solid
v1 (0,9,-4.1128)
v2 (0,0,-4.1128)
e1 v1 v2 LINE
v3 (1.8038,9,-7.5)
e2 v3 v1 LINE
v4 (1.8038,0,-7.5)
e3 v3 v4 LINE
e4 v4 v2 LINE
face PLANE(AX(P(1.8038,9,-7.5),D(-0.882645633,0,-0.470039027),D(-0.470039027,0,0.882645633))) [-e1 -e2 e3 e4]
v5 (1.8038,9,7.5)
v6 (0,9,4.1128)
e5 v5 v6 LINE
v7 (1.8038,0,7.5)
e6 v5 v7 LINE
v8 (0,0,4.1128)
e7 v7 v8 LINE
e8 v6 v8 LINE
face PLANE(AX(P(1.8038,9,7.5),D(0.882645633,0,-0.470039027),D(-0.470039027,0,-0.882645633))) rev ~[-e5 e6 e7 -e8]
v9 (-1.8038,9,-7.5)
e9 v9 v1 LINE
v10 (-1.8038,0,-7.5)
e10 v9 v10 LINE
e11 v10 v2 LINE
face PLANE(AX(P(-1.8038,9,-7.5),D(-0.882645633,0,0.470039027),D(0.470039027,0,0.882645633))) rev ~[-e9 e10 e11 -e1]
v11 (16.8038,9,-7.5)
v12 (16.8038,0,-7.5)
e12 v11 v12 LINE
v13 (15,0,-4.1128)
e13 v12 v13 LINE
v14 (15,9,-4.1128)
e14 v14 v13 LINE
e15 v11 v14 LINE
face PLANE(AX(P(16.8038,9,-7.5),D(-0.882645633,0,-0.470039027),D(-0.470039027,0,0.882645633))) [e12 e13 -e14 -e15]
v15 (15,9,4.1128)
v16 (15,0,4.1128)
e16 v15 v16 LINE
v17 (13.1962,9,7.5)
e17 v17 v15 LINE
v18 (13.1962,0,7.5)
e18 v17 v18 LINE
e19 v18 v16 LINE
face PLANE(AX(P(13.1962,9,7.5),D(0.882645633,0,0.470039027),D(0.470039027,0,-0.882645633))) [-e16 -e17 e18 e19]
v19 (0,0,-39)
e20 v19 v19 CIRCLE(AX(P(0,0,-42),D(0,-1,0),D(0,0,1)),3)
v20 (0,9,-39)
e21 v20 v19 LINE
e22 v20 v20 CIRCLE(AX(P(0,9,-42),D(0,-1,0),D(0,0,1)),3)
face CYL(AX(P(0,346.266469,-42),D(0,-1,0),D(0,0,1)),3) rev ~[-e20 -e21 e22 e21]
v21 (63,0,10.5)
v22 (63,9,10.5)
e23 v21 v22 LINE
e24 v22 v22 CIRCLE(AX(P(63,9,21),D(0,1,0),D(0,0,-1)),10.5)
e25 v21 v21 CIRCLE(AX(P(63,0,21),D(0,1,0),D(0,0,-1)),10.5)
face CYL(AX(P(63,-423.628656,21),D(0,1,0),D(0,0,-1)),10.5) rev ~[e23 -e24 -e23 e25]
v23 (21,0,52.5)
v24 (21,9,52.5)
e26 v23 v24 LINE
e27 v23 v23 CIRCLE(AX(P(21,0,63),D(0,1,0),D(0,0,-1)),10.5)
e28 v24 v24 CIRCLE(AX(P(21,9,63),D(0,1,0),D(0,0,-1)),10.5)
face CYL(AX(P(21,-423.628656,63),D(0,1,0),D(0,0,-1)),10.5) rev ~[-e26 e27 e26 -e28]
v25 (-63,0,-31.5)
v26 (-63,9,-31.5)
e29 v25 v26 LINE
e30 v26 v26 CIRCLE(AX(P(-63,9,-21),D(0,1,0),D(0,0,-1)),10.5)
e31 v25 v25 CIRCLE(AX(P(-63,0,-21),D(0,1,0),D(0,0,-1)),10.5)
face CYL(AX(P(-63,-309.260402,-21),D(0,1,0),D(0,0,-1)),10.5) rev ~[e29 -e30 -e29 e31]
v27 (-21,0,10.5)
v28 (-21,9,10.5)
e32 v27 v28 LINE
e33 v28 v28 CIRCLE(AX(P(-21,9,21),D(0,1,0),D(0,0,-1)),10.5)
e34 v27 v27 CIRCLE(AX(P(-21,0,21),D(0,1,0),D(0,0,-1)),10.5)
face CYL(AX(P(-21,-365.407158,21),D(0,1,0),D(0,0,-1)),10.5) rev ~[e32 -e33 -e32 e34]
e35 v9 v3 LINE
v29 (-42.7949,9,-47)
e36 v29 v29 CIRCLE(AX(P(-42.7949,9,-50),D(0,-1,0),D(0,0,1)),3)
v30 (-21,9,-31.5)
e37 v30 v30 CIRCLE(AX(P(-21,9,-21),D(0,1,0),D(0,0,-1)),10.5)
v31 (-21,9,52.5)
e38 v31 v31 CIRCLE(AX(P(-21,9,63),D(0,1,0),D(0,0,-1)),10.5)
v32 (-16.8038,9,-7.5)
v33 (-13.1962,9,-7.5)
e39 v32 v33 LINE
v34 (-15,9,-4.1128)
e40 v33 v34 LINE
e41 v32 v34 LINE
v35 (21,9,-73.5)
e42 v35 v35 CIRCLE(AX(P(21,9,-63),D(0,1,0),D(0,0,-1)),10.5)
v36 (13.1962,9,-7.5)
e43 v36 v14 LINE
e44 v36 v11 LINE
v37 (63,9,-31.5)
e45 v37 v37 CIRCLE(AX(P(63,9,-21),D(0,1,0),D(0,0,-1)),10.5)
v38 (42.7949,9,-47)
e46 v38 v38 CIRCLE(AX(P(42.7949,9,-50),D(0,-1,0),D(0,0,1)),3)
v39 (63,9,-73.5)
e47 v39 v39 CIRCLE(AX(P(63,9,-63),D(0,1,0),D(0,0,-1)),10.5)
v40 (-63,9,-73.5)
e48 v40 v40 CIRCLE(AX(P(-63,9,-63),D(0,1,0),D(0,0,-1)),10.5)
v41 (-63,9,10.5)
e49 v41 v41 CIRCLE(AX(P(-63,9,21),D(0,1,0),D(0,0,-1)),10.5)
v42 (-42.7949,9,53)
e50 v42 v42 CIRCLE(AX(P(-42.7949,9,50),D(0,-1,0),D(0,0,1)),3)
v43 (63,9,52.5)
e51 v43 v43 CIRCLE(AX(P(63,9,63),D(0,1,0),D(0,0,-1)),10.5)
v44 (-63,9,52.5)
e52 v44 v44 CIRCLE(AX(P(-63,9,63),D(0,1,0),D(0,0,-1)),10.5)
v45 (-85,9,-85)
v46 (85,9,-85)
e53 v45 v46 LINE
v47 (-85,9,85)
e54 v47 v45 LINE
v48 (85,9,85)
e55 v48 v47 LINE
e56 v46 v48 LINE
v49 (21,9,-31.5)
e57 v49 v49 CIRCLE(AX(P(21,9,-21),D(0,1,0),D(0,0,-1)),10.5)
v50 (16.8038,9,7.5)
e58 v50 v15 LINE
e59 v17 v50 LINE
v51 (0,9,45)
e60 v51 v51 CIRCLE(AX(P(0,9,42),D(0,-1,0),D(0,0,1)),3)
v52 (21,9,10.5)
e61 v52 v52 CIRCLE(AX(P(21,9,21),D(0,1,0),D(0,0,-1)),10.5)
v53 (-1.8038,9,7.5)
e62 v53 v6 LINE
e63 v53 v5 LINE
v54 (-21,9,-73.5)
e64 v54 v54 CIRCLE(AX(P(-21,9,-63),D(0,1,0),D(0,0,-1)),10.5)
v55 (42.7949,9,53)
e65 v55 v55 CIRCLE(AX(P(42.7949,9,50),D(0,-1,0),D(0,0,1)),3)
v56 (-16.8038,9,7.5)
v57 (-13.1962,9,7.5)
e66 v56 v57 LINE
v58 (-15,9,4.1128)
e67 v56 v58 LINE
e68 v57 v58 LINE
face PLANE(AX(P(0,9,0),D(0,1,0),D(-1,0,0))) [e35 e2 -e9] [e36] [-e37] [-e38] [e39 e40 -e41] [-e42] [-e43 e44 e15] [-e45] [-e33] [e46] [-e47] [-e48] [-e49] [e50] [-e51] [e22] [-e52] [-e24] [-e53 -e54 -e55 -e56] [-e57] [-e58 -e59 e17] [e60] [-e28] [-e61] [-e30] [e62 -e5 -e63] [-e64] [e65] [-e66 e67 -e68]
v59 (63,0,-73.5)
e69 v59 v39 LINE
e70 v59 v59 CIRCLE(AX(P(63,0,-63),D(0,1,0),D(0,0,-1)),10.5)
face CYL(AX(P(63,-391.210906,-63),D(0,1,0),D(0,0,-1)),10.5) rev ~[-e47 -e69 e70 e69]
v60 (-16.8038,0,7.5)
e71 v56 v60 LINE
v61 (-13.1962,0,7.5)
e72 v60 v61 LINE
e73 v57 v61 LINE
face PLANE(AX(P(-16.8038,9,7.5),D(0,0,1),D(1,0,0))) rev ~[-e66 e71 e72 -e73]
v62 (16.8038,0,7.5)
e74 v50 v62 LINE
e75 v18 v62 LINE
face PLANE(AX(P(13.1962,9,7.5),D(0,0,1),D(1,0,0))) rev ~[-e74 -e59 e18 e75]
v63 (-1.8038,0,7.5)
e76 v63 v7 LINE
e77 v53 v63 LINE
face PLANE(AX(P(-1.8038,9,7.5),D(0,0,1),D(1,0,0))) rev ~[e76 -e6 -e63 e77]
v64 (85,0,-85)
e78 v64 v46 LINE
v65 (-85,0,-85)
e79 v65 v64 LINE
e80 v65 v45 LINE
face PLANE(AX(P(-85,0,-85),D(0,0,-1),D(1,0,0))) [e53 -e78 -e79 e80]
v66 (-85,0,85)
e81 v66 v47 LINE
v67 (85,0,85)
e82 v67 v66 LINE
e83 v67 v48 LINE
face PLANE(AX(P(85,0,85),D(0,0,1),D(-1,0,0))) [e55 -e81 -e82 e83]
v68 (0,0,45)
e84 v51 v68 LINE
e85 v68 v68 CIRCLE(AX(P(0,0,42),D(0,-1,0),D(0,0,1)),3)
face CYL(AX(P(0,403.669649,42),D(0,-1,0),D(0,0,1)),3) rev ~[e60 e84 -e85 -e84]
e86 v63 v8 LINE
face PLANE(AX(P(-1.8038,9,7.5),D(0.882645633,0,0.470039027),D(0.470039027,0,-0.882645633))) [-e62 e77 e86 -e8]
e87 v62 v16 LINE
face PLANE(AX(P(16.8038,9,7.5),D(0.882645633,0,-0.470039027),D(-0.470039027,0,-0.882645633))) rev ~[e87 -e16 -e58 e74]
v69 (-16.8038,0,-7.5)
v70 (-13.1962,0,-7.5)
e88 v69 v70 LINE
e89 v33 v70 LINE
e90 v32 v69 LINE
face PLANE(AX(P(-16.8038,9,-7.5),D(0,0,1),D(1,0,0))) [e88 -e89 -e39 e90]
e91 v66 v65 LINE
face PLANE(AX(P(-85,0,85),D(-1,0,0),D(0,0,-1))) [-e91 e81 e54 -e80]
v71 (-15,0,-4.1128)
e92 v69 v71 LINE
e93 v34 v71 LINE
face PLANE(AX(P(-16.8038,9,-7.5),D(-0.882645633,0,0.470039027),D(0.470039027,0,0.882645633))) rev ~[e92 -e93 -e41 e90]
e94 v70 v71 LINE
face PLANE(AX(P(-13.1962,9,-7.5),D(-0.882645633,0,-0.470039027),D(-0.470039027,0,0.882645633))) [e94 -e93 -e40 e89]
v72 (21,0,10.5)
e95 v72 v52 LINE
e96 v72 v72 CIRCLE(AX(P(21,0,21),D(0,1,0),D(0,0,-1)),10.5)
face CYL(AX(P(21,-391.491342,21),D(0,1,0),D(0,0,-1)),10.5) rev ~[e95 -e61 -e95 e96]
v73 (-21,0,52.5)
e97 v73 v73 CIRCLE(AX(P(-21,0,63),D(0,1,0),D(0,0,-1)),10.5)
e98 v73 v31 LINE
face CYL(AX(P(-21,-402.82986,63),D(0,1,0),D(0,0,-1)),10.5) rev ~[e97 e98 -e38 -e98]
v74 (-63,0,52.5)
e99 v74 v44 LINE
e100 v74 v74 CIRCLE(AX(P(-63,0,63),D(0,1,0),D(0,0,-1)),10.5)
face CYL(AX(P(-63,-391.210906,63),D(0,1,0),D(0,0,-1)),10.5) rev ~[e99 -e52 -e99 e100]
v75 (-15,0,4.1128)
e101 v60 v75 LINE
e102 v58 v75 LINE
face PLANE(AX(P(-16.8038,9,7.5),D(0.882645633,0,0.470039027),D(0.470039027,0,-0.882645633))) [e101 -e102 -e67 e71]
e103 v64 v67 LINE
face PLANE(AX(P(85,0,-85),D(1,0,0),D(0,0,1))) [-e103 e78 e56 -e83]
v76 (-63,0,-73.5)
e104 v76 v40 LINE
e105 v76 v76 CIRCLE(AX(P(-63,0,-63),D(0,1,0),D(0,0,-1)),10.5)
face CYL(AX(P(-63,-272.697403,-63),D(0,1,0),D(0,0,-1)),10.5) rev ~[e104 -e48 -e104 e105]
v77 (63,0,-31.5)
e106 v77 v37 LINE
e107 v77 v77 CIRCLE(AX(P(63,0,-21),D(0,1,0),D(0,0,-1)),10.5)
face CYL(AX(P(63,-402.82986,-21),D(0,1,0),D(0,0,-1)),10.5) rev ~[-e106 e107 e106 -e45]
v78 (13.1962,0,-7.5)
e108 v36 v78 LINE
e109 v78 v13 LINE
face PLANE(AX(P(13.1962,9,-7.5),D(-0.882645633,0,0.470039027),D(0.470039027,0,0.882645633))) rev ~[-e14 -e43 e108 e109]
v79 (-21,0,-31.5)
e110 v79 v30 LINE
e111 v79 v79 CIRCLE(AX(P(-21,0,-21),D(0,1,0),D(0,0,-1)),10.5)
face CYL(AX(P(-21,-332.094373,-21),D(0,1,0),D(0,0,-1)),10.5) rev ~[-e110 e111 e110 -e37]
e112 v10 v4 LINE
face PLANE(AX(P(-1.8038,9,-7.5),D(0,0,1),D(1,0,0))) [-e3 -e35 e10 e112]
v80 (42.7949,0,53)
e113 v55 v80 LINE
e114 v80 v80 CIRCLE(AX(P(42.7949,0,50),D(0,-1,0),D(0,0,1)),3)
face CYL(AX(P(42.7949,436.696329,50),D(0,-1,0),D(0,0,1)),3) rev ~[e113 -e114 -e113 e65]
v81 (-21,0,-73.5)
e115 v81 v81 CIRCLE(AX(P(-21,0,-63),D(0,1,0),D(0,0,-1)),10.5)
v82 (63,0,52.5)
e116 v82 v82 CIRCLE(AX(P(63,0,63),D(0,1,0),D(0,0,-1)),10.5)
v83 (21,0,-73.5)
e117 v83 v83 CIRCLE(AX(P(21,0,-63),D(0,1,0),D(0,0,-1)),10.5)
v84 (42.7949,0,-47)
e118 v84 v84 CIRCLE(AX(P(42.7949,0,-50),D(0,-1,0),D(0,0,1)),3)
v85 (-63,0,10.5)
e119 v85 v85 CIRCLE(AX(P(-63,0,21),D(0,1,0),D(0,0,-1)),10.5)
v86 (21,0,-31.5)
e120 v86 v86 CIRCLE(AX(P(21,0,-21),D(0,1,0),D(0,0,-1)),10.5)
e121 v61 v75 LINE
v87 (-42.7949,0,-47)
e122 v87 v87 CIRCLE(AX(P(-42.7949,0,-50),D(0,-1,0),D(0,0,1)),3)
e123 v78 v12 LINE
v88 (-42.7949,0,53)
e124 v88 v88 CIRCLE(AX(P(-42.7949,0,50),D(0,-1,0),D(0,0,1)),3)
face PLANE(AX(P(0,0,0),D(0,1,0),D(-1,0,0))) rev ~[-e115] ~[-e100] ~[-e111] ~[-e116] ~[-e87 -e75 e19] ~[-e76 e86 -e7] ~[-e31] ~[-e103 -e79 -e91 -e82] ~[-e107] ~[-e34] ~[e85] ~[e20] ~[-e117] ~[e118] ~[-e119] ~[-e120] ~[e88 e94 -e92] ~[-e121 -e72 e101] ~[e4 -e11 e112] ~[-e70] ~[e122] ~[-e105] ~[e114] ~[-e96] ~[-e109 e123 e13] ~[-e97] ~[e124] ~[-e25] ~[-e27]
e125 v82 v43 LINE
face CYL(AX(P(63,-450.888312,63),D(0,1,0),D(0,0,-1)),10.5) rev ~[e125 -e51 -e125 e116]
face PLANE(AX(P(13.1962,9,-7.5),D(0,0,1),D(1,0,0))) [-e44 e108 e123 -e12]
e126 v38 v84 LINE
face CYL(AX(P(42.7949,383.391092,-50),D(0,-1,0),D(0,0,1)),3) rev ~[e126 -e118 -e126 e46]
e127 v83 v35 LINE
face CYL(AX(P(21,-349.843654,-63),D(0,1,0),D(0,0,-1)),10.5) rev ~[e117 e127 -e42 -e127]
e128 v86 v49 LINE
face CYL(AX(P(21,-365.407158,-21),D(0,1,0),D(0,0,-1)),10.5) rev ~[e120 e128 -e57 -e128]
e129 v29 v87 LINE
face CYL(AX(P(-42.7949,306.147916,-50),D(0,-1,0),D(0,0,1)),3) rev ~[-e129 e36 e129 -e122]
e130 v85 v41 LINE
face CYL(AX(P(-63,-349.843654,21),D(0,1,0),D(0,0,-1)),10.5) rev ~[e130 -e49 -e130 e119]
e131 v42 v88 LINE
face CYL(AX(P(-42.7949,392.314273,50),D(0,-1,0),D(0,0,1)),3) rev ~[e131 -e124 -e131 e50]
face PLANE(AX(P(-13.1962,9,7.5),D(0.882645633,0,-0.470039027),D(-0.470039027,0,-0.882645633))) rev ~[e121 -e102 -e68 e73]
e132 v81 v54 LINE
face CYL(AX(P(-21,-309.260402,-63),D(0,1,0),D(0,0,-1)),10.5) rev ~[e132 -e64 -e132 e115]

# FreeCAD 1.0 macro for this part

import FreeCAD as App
import Part
import Sketcher

V = App.Vector
Q = App.Units.Quantity


def add_polygon(sketch, points):
    """Adds a closed chain of lines whose ends are joined by coincident constraints."""
    first, n = sketch.GeometryCount, len(points)
    for a, b in zip(points, points[1:] + points[:1]):
        sketch.addGeometry(Part.LineSegment(App.Vector(*a, 0), App.Vector(*b, 0)), False)
    for i in range(n):
        sketch.addConstraint(Sketcher.Constraint("Coincident", first + i, 2, first + (i + 1) % n, 1))

doc = App.newDocument("Part")
body = doc.addObject("PartDesign::Body", "Body")

sketch1 = body.newObject("Sketcher::SketchObject", "Sketch")
sketch1.AttachmentSupport = (doc.getObject("XZ_Plane"), [""])
sketch1.MapMode = "FlatFace"
add_polygon(sketch1, [(-85, 85), (85, 85), (85, -85), (-85, -85)])
sketch1.addConstraint([
    Sketcher.Constraint("Horizontal", 0),
    Sketcher.Constraint("Vertical", 1),
    Sketcher.Constraint("Horizontal", 2),
    Sketcher.Constraint("Vertical", 3),
    Sketcher.Constraint("Symmetric", 0, 2, 2, 2, -1, 1),
    Sketcher.Constraint("Equal", 2, 1),
    Sketcher.Constraint("DistanceX", 0, 1, 0, 2, Q("170 mm")),
])
pad1 = body.newObject("PartDesign::Pad", "Pad")
pad1.Profile = sketch1
pad1.Length = 9
pad1.Reversed = True

sketch2 = body.newObject("Sketcher::SketchObject", "Sketch001")
sketch2.AttachmentSupport = (doc.getObject("XZ_Plane"), [""])
sketch2.MapMode = "FlatFace"
sketch2.addGeometry([
    Part.Circle(V(63, -63, 0), V(0, 0, 1), 10),
    Part.Circle(V(63, -21, 0), V(0, 0, 1), 10),
    Part.Circle(V(63, 21, 0), V(0, 0, 1), 10),
    Part.Circle(V(63, 63, 0), V(0, 0, 1), 10),
    Part.Circle(V(21, -63, 0), V(0, 0, 1), 10),
    Part.Circle(V(21, -21, 0), V(0, 0, 1), 10),
    Part.Circle(V(21, 21, 0), V(0, 0, 1), 10),
    Part.Circle(V(21, 63, 0), V(0, 0, 1), 10),
    Part.Circle(V(-21, -63, 0), V(0, 0, 1), 10),
    Part.Circle(V(-21, -21, 0), V(0, 0, 1), 10),
    Part.Circle(V(-21, 21, 0), V(0, 0, 1), 10),
    Part.Circle(V(-21, 63, 0), V(0, 0, 1), 10),
    Part.Circle(V(-63, -63, 0), V(0, 0, 1), 10),
    Part.Circle(V(-63, -21, 0), V(0, 0, 1), 10),
    Part.Circle(V(-63, 21, 0), V(0, 0, 1), 10),
    Part.Circle(V(-63, 63, 0), V(0, 0, 1), 10),
], False)
sketch2.addConstraint([
    Sketcher.Constraint("Equal", 0, 1),
    Sketcher.Constraint("Equal", 1, 2),
    Sketcher.Constraint("Equal", 2, 3),
    Sketcher.Constraint("Equal", 3, 4),
    Sketcher.Constraint("Equal", 4, 5),
    Sketcher.Constraint("Equal", 5, 6),
    Sketcher.Constraint("Equal", 6, 7),
    Sketcher.Constraint("Equal", 7, 8),
    Sketcher.Constraint("Equal", 8, 9),
    Sketcher.Constraint("Equal", 9, 10),
    Sketcher.Constraint("Equal", 10, 11),
    Sketcher.Constraint("Equal", 11, 12),
    Sketcher.Constraint("Equal", 12, 13),
    Sketcher.Constraint("Equal", 13, 14),
    Sketcher.Constraint("Equal", 14, 15),
    Sketcher.Constraint("Symmetric", 7, 3, 8, 3, -1, 1),
    Sketcher.Constraint("Symmetric", 6, 3, 9, 3, -1, 1),
    Sketcher.Constraint("Symmetric", 5, 3, 10, 3, -1, 1),
    Sketcher.Constraint("Symmetric", 4, 3, 11, 3, -1, 1),
    Sketcher.Constraint("Symmetric", 3, 3, 12, 3, -1, 1),
    Sketcher.Constraint("Symmetric", 2, 3, 13, 3, -1, 1),
    Sketcher.Constraint("Symmetric", 1, 3, 14, 3, -1, 1),
    Sketcher.Constraint("Symmetric", 0, 3, 15, 3, -1, 1),
    Sketcher.Constraint("Symmetric", 4, 3, 8, 3, -2),
    Sketcher.Constraint("Symmetric", 5, 3, 9, 3, -2),
    Sketcher.Constraint("Symmetric", 0, 3, 12, 3, -2),
    Sketcher.Constraint("Symmetric", 1, 3, 13, 3, -2),
    Sketcher.Constraint("Horizontal", 0, 3, 4, 3),
    Sketcher.Constraint("Horizontal", 1, 3, 5, 3),
    Sketcher.Constraint("Vertical", 0, 3, 1, 3),
    Sketcher.Constraint("Vertical", 4, 3, 5, 3),
    Sketcher.Constraint("Diameter", 0, Q("21 mm")),
    Sketcher.Constraint("DistanceX", -1, 1, 0, 3, Q("63 mm")),
    Sketcher.Constraint("DistanceY", 0, 3, -1, 1, Q("63 mm")),
    Sketcher.Constraint("DistanceY", 1, 3, -1, 1, Q("21 mm")),
    Sketcher.Constraint("DistanceX", -1, 1, 4, 3, Q("21 mm")),
])
doc.recompute()
hole = body.newObject("PartDesign::Hole", "Hole")
hole.Profile = sketch2
hole.ThreadType = "None"
hole.Diameter = 21
hole.DepthType = "ThroughAll"

sketch3 = body.newObject("Sketcher::SketchObject", "Sketch002")
sketch3.AttachmentSupport = (doc.getObject("XZ_Plane"), [""])
sketch3.MapMode = "FlatFace"
sketch3.AttachmentOffset = App.Placement(V(0, 0, -9), App.Rotation())
sketch3.addGeometry([
    Part.Circle(V(-42.8, -50, 0), V(0, 0, 1), 3),
    Part.Circle(V(42.8, -50, 0), V(0, 0, 1), 3),
    Part.Circle(V(42.8, 50, 0), V(0, 0, 1), 3),
    Part.Circle(V(-42.8, 50, 0), V(0, 0, 1), 3),
], False)
sketch3.addConstraint([
    Sketcher.Constraint("Equal", 0, 1),
    Sketcher.Constraint("Equal", 1, 2),
    Sketcher.Constraint("Equal", 2, 3),
    Sketcher.Constraint("Symmetric", 0, 3, 2, 3, -1, 1),
    Sketcher.Constraint("Symmetric", 1, 3, 3, 3, -1, 1),
    Sketcher.Constraint("Symmetric", 0, 3, 1, 3, -2),
    Sketcher.Constraint("Diameter", 0, Q("6 mm")),
    Sketcher.Constraint("DistanceY", 0, 3, -1, 1, Q("50 mm")),
    Sketcher.Constraint("DistanceX", 0, 3, -1, 1, Q("42.795 mm")),
])
doc.recompute()
hole2 = body.newObject("PartDesign::Hole", "Hole001")
hole2.Profile = sketch3
hole2.ThreadType = "None"
hole2.Diameter = 6
hole2.DepthType = "ThroughAll"
hole2.Reversed = True

sketch4 = body.newObject("Sketcher::SketchObject", "Sketch003")
sketch4.AttachmentSupport = (doc.getObject("XZ_Plane"), [""])
sketch4.MapMode = "FlatFace"
sketch4.AttachmentOffset = App.Placement(V(0, 0, -9), App.Rotation())
sketch4.addGeometry([
    Part.Circle(V(0, -42, 0), V(0, 0, 1), 3),
    Part.Circle(V(0, 42, 0), V(0, 0, 1), 3),
], False)
sketch4.addConstraint([
    Sketcher.Constraint("Equal", 0, 1),
    Sketcher.Constraint("Symmetric", 0, 3, 1, 3, -1, 1),
    Sketcher.Constraint("PointOnObject", 0, 3, -2),
    Sketcher.Constraint("Diameter", 0, Q("6 mm")),
    Sketcher.Constraint("DistanceY", 0, 3, -1, 1, Q("42 mm")),
])
doc.recompute()
hole3 = body.newObject("PartDesign::Hole", "Hole002")
hole3.Profile = sketch4
hole3.ThreadType = "None"
hole3.Diameter = 6
hole3.DepthType = "ThroughAll"
hole3.Reversed = True

sketch5 = body.newObject("Sketcher::SketchObject", "Sketch004")
sketch5.AttachmentSupport = (doc.getObject("XZ_Plane"), [""])
sketch5.MapMode = "FlatFace"
sketch5.AttachmentOffset = App.Placement(V(0, 0, -9), App.Rotation())
add_polygon(sketch5, [(1.8, -7.5), (-1.8, -7.5), (0, -4.1)])
add_polygon(sketch5, [(0, 4.1), (-1.8, 7.5), (1.8, 7.5)])
sketch5.addConstraint([
    Sketcher.Constraint("Horizontal", 0),
    Sketcher.Constraint("Horizontal", 4),
    Sketcher.Constraint("Symmetric", 2, 2, 3, 2, -1, 1),
    Sketcher.Constraint("Symmetric", 1, 2, 5, 2, -1, 1),
    Sketcher.Constraint("PointOnObject", 1, 2, -2),
    Sketcher.Constraint("Parallel", 1, 5),
    Sketcher.Constraint("Vertical", 0, 2, 3, 2),
    Sketcher.Constraint("DistanceY", 0, 2, 3, 2, Q("15 mm")),
    Sketcher.Constraint("DistanceX", 0, 2, 0, 1, Q("3.6076 mm")),
    Sketcher.Constraint("Distance", 1, Q("3.8376 mm")),
])
pocket1 = body.newObject("PartDesign::Pocket", "Pocket")
pocket1.Profile = sketch5
pocket1.Length = 10
pocket1.Reversed = True

sketch6 = body.newObject("Sketcher::SketchObject", "Sketch005")
sketch6.AttachmentSupport = (doc.getObject("XZ_Plane"), [""])
sketch6.MapMode = "FlatFace"
sketch6.AttachmentOffset = App.Placement(V(0, 0, -9), App.Rotation())
add_polygon(sketch6, [(-13.2, -7.5), (-16.8, -7.5), (-15, -4.1)])
add_polygon(sketch6, [(16.8, -7.5), (13.2, -7.5), (15, -4.1)])
add_polygon(sketch6, [(-15, 4.1), (-16.8, 7.5), (-13.2, 7.5)])
add_polygon(sketch6, [(15, 4.1), (13.2, 7.5), (16.8, 7.5)])
sketch6.addConstraint([
    Sketcher.Constraint("Horizontal", 0),
    Sketcher.Constraint("Horizontal", 3),
    Sketcher.Constraint("Horizontal", 7),
    Sketcher.Constraint("Horizontal", 10),
    Sketcher.Constraint("Symmetric", 5, 2, 6, 2, -1, 1),
    Sketcher.Constraint("Symmetric", 4, 2, 8, 2, -1, 1),
    Sketcher.Constraint("Symmetric", 2, 2, 9, 2, -1, 1),
    Sketcher.Constraint("Symmetric", 1, 2, 11, 2, -1, 1),
    Sketcher.Constraint("Symmetric", 2, 2, 3, 2, -2),
    Sketcher.Constraint("Symmetric", 1, 2, 4, 2, -2),
    Sketcher.Constraint("Parallel", 1, 4),
    Sketcher.Constraint("Parallel", 2, 5),
    Sketcher.Constraint("Parallel", 4, 8),
    Sketcher.Constraint("Parallel", 8, 11),
    Sketcher.Constraint("DistanceX", 1, 2, -1, 1, Q("15 mm")),
    Sketcher.Constraint("DistanceY", 0, 2, 6, 2, Q("15 mm")),
    Sketcher.Constraint("DistanceX", 0, 2, 0, 1, Q("3.6076 mm")),
    Sketcher.Constraint("Distance", 1, Q("3.8376 mm")),
])
pocket2 = body.newObject("PartDesign::Pocket", "Pocket001")
pocket2.Profile = sketch6
pocket2.Length = 10
pocket2.Reversed = True

doc.recompute()
